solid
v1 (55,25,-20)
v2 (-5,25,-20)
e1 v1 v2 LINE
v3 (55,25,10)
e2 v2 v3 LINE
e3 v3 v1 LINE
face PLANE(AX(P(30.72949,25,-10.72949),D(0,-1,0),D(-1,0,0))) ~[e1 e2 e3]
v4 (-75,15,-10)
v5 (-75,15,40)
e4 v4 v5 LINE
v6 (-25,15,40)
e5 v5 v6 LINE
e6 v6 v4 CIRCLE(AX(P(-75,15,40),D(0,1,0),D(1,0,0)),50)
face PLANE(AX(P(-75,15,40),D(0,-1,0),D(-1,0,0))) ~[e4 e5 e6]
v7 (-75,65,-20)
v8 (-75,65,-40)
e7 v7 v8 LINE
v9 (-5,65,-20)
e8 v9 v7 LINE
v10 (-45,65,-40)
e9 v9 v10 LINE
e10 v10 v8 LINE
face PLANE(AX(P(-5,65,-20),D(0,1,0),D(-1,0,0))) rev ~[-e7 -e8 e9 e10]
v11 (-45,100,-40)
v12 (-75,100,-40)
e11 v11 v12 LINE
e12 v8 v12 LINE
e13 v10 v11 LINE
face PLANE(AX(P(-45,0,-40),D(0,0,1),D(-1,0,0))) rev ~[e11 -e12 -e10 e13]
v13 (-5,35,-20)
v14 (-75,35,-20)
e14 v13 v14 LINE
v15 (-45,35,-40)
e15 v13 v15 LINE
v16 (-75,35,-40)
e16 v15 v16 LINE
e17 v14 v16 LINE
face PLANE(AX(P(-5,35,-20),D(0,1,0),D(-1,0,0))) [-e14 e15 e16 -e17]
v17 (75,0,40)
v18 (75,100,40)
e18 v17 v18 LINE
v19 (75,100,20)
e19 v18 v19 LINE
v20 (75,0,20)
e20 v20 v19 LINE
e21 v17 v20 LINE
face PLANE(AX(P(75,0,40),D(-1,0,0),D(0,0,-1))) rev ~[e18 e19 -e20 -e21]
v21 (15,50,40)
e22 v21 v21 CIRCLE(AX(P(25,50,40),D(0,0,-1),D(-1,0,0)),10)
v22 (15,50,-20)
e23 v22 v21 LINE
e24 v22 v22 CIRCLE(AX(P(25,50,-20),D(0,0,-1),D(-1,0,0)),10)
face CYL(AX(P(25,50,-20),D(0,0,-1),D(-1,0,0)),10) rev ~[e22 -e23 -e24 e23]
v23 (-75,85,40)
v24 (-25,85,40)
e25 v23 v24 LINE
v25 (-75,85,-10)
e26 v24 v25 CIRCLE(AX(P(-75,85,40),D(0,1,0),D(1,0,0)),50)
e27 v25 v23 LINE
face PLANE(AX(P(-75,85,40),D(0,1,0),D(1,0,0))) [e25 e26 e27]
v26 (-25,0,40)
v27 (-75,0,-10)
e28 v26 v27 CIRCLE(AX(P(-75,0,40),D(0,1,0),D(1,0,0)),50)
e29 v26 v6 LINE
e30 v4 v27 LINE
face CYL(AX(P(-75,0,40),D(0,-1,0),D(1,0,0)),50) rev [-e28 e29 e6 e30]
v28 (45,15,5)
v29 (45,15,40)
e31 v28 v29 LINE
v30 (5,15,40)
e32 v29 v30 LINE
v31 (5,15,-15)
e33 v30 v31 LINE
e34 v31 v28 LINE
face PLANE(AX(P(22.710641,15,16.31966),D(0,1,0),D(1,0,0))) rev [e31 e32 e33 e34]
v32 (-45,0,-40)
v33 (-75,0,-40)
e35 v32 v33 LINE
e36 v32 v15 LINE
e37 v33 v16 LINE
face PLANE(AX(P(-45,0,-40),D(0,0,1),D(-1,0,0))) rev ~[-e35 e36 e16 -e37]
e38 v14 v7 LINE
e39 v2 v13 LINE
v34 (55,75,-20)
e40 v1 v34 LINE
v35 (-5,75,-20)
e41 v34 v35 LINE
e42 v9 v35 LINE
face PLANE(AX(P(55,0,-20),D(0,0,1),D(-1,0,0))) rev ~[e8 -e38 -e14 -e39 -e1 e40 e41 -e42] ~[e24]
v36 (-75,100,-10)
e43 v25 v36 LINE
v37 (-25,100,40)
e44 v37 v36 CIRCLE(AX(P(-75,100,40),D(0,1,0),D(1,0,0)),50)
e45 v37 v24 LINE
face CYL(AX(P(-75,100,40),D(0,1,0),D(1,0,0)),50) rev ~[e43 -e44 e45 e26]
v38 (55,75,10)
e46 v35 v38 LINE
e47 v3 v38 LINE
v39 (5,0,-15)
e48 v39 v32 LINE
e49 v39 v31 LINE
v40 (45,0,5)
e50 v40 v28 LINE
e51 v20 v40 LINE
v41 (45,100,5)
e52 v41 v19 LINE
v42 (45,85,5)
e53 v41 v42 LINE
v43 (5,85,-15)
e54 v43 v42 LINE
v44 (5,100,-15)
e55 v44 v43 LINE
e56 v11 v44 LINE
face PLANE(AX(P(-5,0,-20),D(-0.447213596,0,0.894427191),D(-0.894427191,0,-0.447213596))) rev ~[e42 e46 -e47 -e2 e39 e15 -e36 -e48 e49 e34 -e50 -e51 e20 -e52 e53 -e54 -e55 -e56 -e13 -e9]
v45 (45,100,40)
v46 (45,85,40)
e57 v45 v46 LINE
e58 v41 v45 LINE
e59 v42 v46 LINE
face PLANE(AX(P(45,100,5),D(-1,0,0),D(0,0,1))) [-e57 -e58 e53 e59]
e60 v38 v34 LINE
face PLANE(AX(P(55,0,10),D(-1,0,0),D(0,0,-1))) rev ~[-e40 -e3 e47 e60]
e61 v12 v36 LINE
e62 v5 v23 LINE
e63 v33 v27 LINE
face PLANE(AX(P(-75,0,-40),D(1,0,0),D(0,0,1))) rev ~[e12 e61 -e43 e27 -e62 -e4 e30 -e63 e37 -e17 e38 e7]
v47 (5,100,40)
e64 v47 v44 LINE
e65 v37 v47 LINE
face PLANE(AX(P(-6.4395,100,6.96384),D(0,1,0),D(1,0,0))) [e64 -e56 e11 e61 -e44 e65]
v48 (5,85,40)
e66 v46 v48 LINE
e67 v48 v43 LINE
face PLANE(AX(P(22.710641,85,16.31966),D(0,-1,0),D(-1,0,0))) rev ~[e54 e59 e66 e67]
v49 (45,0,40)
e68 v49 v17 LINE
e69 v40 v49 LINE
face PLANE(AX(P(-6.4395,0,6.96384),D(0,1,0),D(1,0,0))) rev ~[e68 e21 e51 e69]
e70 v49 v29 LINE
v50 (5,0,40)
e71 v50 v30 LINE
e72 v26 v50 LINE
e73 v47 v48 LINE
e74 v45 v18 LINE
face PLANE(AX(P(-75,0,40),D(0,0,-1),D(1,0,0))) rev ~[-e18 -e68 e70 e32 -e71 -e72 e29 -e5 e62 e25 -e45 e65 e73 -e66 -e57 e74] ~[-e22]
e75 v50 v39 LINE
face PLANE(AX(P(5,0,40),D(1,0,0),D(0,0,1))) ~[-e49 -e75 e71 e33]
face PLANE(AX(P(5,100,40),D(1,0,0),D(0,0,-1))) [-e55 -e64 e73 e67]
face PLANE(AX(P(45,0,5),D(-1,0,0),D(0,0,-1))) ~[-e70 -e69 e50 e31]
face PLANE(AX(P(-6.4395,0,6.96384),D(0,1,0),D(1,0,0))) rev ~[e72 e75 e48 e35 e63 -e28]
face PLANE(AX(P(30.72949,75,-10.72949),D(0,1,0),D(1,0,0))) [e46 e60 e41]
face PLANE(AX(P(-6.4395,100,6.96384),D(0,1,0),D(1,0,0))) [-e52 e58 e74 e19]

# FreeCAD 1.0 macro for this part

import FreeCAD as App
import Part
import Sketcher

V = App.Vector

doc = App.newDocument("Part")
params = doc.addObject("Spreadsheet::Sheet", "Params")
for row, (alias, value) in enumerate([
    ("sketch1_width", "30 mm"),
    ("sketch1_width2", "150 mm"),
    ("sketch1_width3", "60 mm"),
    ("sketch1_height", "80 mm"),
    ("sketch1_height2", "20 mm"),
    ("pad1_length", "100 mm"),
    ("sketch2_diameter", "100 mm"),
    ("sketch2_width", "40 mm"),
    ("sketch2_height", "55 mm"),
    ("sketch2_height2", "35 mm"),
    ("pocket1_length", "15 mm"),
    ("sketch3_width", "60 mm"),
    ("sketch3_height", "30 mm"),
    ("pocket2_length", "25 mm"),
    ("sketch4_width", "70 mm"),
    ("sketch4_height", "30 mm"),
    ("sketch5_diameter", "20 mm"),
], start=1):
    params.set(f"A{row}", alias)
    params.set(f"B{row}", "=" + value)
    params.setAlias(f"B{row}", alias)

body = doc.addObject("PartDesign::Body", "Body")

sketch1 = body.newObject("Sketcher::SketchObject", "Sketch")
sketch1.AttachmentSupport = (doc.getObject("XZ_Plane"), [""])
sketch1.MapMode = "FlatFace"
sketch1.addGeometry([
    Part.LineSegment(V(-5, -20, 0), V(-45, -40, 0)),
    Part.LineSegment(V(-45, -40, 0), V(-75, -40, 0)),
    Part.LineSegment(V(-75, -40, 0), V(-75, 40, 0)),
    Part.LineSegment(V(-75, 40, 0), V(75, 40, 0)),
    Part.LineSegment(V(75, 40, 0), V(75, 20, 0)),
    Part.LineSegment(V(75, 20, 0), V(55, 10, 0)),
    Part.LineSegment(V(55, 10, 0), V(55, -20, 0)),
    Part.LineSegment(V(55, -20, 0), V(-5, -20, 0)),
], False)
sketch1.addConstraint([
    Sketcher.Constraint("Coincident", 0, 2, 1, 1),
    Sketcher.Constraint("Coincident", 1, 2, 2, 1),
    Sketcher.Constraint("Coincident", 2, 2, 3, 1),
    Sketcher.Constraint("Coincident", 3, 2, 4, 1),
    Sketcher.Constraint("Coincident", 4, 2, 5, 1),
    Sketcher.Constraint("Coincident", 5, 2, 6, 1),
    Sketcher.Constraint("Coincident", 6, 2, 7, 1),
    Sketcher.Constraint("Coincident", 7, 2, 0, 1),
    Sketcher.Constraint("Horizontal", 1),
    Sketcher.Constraint("Vertical", 2),
    Sketcher.Constraint("Horizontal", 3),
    Sketcher.Constraint("Vertical", 4),
    Sketcher.Constraint("Vertical", 6),
    Sketcher.Constraint("Horizontal", 7),
    Sketcher.Constraint("Symmetric", 1, 2, 3, 2, -1, 1),
    Sketcher.Constraint("Parallel", 0, 5),
    Sketcher.Constraint("Equal", 1, 6),
    Sketcher.Constraint("DistanceX", 1, 2, 1, 1, 30.0),
    Sketcher.Constraint("DistanceX", 3, 1, 3, 2, 150.0),
    Sketcher.Constraint("DistanceX", 7, 2, 7, 1, 60.0),
    Sketcher.Constraint("DistanceY", 2, 1, 2, 2, 80.0),
    Sketcher.Constraint("DistanceY", 4, 2, 4, 1, 20.0),
    Sketcher.Constraint("DistanceX", -1, 1, 5, 2, 55.0),
])
sketch1.setExpression("Constraints[17]", "Params.sketch1_width")
sketch1.setExpression("Constraints[18]", "Params.sketch1_width2")
sketch1.setExpression("Constraints[19]", "Params.sketch1_width3")
sketch1.setExpression("Constraints[20]", "Params.sketch1_height")
sketch1.setExpression("Constraints[21]", "Params.sketch1_height2")
pad1 = body.newObject("PartDesign::Pad", "Pad")
pad1.Profile = sketch1
pad1.setExpression("Length", "Params.pad1_length")
pad1.Reversed = True

sketch2 = body.newObject("Sketcher::SketchObject", "Sketch001")
sketch2.AttachmentSupport = (doc.getObject("XZ_Plane"), [""])
sketch2.MapMode = "FlatFace"
sketch2.AttachmentOffset = App.Placement(V(0, 0, -100), App.Rotation())
sketch2.addGeometry([
    Part.Circle(V(-75, 40, 0), V(0, 0, 1), 50),
    Part.LineSegment(V(5, -15, 0), V(5, 40, 0)),
    Part.LineSegment(V(5, 40, 0), V(45, 40, 0)),
    Part.LineSegment(V(45, 40, 0), V(45, 5, 0)),
    Part.LineSegment(V(45, 5, 0), V(5, -15, 0)),
], False)
sketch2.addConstraint([
    Sketcher.Constraint("Coincident", 1, 2, 2, 1),
    Sketcher.Constraint("Coincident", 2, 2, 3, 1),
    Sketcher.Constraint("Coincident", 3, 2, 4, 1),
    Sketcher.Constraint("Coincident", 4, 2, 1, 1),
    Sketcher.Constraint("Vertical", 1),
    Sketcher.Constraint("Horizontal", 2),
    Sketcher.Constraint("Vertical", 3),
    Sketcher.Constraint("Horizontal", 0, 3, 1, 2),
    Sketcher.Constraint("Diameter", 0, 100.0),
    Sketcher.Constraint("DistanceX", 2, 1, 2, 2, 40.0),
    Sketcher.Constraint("DistanceY", 1, 1, 1, 2, 55.0),
    Sketcher.Constraint("DistanceY", 3, 2, 3, 1, 35.0),
    Sketcher.Constraint("DistanceX", 0, 3, -1, 1, 75.0),
    Sketcher.Constraint("DistanceY", -1, 1, 0, 3, 40.0),
    Sketcher.Constraint("DistanceX", -1, 1, 1, 2, 5.0),
])
sketch2.setExpression("Constraints[8]", "Params.sketch2_diameter")
sketch2.setExpression("Constraints[9]", "Params.sketch2_width")
sketch2.setExpression("Constraints[10]", "Params.sketch2_height")
sketch2.setExpression("Constraints[11]", "Params.sketch2_height2")
pocket1 = body.newObject("PartDesign::Pocket", "Pocket")
pocket1.Profile = sketch2
pocket1.setExpression("Length", "Params.pocket1_length")
pocket1.Reversed = True

sketch3 = body.newObject("Sketcher::SketchObject", "Sketch002")
sketch3.AttachmentSupport = (doc.getObject("XZ_Plane"), [""])
sketch3.MapMode = "FlatFace"
sketch3.AttachmentOffset = App.Placement(V(0, 0, -100), App.Rotation())
sketch3.addGeometry([
    Part.LineSegment(V(-5, -20, 0), V(55, 10, 0)),
    Part.LineSegment(V(55, 10, 0), V(55, -20, 0)),
    Part.LineSegment(V(55, -20, 0), V(-5, -20, 0)),
], False)
sketch3.addConstraint([
    Sketcher.Constraint("Coincident", 0, 2, 1, 1),
    Sketcher.Constraint("Coincident", 1, 2, 2, 1),
    Sketcher.Constraint("Coincident", 2, 2, 0, 1),
    Sketcher.Constraint("Vertical", 1),
    Sketcher.Constraint("Horizontal", 2),
    Sketcher.Constraint("DistanceX", 2, 2, 2, 1, 60.0),
    Sketcher.Constraint("DistanceY", 1, 2, 1, 1, 30.0),
    Sketcher.Constraint("DistanceX", -1, 1, 0, 2, 55.0),
    Sketcher.Constraint("DistanceY", -1, 1, 0, 2, 10.0),
])
sketch3.setExpression("Constraints[5]", "Params.sketch3_width")
sketch3.setExpression("Constraints[6]", "Params.sketch3_height")
pocket2 = body.newObject("PartDesign::Pocket", "Pocket001")
pocket2.Profile = sketch3
pocket2.setExpression("Length", "Params.pocket2_length")
pocket2.Reversed = True
doc.recompute()

datumplane = body.newObject("PartDesign::Plane", "DatumPlane")
datumplane.AttachmentSupport = (doc.getObject("XZ_Plane"), [""])
datumplane.MapMode = "FlatFace"
datumplane.AttachmentOffset = App.Placement(V(0, 0, -50), App.Rotation())
mirrored = body.newObject("PartDesign::Mirrored", "Mirrored")
mirrored.Originals = [pocket1, pocket2]
mirrored.MirrorPlane = (datumplane, [""])
body.Tip = mirrored

sketch4 = body.newObject("Sketcher::SketchObject", "Sketch003")
sketch4.AttachmentSupport = (doc.getObject("XY_Plane"), [""])
sketch4.MapMode = "FlatFace"
sketch4.AttachmentOffset = App.Placement(V(0, 0, -20), App.Rotation())
sketch4.addGeometry([
    Part.LineSegment(V(-5, 65, 0), V(-5, 35, 0)),
    Part.LineSegment(V(-5, 35, 0), V(-75, 35, 0)),
    Part.LineSegment(V(-75, 35, 0), V(-75, 65, 0)),
    Part.LineSegment(V(-75, 65, 0), V(-5, 65, 0)),
], False)
sketch4.addConstraint([
    Sketcher.Constraint("Coincident", 0, 2, 1, 1),
    Sketcher.Constraint("Coincident", 1, 2, 2, 1),
    Sketcher.Constraint("Coincident", 2, 2, 3, 1),
    Sketcher.Constraint("Coincident", 3, 2, 0, 1),
    Sketcher.Constraint("Vertical", 0),
    Sketcher.Constraint("Horizontal", 1),
    Sketcher.Constraint("Vertical", 2),
    Sketcher.Constraint("Horizontal", 3),
    Sketcher.Constraint("DistanceX", 1, 2, 1, 1, 70.0),
    Sketcher.Constraint("DistanceY", 0, 2, 0, 1, 30.0),
    Sketcher.Constraint("DistanceX", 0, 2, -1, 1, 5.0),
    Sketcher.Constraint("DistanceY", -1, 1, 0, 2, 35.0),
])
sketch4.setExpression("Constraints[8]", "Params.sketch4_width")
sketch4.setExpression("Constraints[9]", "Params.sketch4_height")
pocket3 = body.newObject("PartDesign::Pocket", "Pocket002")
pocket3.Profile = sketch4
pocket3.Type = "ThroughAll"

sketch5 = body.newObject("Sketcher::SketchObject", "Sketch004")
sketch5.AttachmentSupport = (doc.getObject("XY_Plane"), [""])
sketch5.MapMode = "FlatFace"
sketch5.AttachmentOffset = App.Placement(V(0, 0, -20), App.Rotation())
sketch5.addGeometry(Part.Circle(V(25, 50, 0), V(0, 0, 1), 10), False)
sketch5.addConstraint([
    Sketcher.Constraint("Diameter", 0, 20.0),
    Sketcher.Constraint("DistanceX", -1, 1, 0, 3, 25.0),
    Sketcher.Constraint("DistanceY", -1, 1, 0, 3, 50.0),
])
sketch5.setExpression("Constraints[0]", "Params.sketch5_diameter")
pocket4 = body.newObject("PartDesign::Pocket", "Pocket003")
pocket4.Profile = sketch5
pocket4.Type = "ThroughAll"
pocket4.Reversed = True

doc.recompute()
